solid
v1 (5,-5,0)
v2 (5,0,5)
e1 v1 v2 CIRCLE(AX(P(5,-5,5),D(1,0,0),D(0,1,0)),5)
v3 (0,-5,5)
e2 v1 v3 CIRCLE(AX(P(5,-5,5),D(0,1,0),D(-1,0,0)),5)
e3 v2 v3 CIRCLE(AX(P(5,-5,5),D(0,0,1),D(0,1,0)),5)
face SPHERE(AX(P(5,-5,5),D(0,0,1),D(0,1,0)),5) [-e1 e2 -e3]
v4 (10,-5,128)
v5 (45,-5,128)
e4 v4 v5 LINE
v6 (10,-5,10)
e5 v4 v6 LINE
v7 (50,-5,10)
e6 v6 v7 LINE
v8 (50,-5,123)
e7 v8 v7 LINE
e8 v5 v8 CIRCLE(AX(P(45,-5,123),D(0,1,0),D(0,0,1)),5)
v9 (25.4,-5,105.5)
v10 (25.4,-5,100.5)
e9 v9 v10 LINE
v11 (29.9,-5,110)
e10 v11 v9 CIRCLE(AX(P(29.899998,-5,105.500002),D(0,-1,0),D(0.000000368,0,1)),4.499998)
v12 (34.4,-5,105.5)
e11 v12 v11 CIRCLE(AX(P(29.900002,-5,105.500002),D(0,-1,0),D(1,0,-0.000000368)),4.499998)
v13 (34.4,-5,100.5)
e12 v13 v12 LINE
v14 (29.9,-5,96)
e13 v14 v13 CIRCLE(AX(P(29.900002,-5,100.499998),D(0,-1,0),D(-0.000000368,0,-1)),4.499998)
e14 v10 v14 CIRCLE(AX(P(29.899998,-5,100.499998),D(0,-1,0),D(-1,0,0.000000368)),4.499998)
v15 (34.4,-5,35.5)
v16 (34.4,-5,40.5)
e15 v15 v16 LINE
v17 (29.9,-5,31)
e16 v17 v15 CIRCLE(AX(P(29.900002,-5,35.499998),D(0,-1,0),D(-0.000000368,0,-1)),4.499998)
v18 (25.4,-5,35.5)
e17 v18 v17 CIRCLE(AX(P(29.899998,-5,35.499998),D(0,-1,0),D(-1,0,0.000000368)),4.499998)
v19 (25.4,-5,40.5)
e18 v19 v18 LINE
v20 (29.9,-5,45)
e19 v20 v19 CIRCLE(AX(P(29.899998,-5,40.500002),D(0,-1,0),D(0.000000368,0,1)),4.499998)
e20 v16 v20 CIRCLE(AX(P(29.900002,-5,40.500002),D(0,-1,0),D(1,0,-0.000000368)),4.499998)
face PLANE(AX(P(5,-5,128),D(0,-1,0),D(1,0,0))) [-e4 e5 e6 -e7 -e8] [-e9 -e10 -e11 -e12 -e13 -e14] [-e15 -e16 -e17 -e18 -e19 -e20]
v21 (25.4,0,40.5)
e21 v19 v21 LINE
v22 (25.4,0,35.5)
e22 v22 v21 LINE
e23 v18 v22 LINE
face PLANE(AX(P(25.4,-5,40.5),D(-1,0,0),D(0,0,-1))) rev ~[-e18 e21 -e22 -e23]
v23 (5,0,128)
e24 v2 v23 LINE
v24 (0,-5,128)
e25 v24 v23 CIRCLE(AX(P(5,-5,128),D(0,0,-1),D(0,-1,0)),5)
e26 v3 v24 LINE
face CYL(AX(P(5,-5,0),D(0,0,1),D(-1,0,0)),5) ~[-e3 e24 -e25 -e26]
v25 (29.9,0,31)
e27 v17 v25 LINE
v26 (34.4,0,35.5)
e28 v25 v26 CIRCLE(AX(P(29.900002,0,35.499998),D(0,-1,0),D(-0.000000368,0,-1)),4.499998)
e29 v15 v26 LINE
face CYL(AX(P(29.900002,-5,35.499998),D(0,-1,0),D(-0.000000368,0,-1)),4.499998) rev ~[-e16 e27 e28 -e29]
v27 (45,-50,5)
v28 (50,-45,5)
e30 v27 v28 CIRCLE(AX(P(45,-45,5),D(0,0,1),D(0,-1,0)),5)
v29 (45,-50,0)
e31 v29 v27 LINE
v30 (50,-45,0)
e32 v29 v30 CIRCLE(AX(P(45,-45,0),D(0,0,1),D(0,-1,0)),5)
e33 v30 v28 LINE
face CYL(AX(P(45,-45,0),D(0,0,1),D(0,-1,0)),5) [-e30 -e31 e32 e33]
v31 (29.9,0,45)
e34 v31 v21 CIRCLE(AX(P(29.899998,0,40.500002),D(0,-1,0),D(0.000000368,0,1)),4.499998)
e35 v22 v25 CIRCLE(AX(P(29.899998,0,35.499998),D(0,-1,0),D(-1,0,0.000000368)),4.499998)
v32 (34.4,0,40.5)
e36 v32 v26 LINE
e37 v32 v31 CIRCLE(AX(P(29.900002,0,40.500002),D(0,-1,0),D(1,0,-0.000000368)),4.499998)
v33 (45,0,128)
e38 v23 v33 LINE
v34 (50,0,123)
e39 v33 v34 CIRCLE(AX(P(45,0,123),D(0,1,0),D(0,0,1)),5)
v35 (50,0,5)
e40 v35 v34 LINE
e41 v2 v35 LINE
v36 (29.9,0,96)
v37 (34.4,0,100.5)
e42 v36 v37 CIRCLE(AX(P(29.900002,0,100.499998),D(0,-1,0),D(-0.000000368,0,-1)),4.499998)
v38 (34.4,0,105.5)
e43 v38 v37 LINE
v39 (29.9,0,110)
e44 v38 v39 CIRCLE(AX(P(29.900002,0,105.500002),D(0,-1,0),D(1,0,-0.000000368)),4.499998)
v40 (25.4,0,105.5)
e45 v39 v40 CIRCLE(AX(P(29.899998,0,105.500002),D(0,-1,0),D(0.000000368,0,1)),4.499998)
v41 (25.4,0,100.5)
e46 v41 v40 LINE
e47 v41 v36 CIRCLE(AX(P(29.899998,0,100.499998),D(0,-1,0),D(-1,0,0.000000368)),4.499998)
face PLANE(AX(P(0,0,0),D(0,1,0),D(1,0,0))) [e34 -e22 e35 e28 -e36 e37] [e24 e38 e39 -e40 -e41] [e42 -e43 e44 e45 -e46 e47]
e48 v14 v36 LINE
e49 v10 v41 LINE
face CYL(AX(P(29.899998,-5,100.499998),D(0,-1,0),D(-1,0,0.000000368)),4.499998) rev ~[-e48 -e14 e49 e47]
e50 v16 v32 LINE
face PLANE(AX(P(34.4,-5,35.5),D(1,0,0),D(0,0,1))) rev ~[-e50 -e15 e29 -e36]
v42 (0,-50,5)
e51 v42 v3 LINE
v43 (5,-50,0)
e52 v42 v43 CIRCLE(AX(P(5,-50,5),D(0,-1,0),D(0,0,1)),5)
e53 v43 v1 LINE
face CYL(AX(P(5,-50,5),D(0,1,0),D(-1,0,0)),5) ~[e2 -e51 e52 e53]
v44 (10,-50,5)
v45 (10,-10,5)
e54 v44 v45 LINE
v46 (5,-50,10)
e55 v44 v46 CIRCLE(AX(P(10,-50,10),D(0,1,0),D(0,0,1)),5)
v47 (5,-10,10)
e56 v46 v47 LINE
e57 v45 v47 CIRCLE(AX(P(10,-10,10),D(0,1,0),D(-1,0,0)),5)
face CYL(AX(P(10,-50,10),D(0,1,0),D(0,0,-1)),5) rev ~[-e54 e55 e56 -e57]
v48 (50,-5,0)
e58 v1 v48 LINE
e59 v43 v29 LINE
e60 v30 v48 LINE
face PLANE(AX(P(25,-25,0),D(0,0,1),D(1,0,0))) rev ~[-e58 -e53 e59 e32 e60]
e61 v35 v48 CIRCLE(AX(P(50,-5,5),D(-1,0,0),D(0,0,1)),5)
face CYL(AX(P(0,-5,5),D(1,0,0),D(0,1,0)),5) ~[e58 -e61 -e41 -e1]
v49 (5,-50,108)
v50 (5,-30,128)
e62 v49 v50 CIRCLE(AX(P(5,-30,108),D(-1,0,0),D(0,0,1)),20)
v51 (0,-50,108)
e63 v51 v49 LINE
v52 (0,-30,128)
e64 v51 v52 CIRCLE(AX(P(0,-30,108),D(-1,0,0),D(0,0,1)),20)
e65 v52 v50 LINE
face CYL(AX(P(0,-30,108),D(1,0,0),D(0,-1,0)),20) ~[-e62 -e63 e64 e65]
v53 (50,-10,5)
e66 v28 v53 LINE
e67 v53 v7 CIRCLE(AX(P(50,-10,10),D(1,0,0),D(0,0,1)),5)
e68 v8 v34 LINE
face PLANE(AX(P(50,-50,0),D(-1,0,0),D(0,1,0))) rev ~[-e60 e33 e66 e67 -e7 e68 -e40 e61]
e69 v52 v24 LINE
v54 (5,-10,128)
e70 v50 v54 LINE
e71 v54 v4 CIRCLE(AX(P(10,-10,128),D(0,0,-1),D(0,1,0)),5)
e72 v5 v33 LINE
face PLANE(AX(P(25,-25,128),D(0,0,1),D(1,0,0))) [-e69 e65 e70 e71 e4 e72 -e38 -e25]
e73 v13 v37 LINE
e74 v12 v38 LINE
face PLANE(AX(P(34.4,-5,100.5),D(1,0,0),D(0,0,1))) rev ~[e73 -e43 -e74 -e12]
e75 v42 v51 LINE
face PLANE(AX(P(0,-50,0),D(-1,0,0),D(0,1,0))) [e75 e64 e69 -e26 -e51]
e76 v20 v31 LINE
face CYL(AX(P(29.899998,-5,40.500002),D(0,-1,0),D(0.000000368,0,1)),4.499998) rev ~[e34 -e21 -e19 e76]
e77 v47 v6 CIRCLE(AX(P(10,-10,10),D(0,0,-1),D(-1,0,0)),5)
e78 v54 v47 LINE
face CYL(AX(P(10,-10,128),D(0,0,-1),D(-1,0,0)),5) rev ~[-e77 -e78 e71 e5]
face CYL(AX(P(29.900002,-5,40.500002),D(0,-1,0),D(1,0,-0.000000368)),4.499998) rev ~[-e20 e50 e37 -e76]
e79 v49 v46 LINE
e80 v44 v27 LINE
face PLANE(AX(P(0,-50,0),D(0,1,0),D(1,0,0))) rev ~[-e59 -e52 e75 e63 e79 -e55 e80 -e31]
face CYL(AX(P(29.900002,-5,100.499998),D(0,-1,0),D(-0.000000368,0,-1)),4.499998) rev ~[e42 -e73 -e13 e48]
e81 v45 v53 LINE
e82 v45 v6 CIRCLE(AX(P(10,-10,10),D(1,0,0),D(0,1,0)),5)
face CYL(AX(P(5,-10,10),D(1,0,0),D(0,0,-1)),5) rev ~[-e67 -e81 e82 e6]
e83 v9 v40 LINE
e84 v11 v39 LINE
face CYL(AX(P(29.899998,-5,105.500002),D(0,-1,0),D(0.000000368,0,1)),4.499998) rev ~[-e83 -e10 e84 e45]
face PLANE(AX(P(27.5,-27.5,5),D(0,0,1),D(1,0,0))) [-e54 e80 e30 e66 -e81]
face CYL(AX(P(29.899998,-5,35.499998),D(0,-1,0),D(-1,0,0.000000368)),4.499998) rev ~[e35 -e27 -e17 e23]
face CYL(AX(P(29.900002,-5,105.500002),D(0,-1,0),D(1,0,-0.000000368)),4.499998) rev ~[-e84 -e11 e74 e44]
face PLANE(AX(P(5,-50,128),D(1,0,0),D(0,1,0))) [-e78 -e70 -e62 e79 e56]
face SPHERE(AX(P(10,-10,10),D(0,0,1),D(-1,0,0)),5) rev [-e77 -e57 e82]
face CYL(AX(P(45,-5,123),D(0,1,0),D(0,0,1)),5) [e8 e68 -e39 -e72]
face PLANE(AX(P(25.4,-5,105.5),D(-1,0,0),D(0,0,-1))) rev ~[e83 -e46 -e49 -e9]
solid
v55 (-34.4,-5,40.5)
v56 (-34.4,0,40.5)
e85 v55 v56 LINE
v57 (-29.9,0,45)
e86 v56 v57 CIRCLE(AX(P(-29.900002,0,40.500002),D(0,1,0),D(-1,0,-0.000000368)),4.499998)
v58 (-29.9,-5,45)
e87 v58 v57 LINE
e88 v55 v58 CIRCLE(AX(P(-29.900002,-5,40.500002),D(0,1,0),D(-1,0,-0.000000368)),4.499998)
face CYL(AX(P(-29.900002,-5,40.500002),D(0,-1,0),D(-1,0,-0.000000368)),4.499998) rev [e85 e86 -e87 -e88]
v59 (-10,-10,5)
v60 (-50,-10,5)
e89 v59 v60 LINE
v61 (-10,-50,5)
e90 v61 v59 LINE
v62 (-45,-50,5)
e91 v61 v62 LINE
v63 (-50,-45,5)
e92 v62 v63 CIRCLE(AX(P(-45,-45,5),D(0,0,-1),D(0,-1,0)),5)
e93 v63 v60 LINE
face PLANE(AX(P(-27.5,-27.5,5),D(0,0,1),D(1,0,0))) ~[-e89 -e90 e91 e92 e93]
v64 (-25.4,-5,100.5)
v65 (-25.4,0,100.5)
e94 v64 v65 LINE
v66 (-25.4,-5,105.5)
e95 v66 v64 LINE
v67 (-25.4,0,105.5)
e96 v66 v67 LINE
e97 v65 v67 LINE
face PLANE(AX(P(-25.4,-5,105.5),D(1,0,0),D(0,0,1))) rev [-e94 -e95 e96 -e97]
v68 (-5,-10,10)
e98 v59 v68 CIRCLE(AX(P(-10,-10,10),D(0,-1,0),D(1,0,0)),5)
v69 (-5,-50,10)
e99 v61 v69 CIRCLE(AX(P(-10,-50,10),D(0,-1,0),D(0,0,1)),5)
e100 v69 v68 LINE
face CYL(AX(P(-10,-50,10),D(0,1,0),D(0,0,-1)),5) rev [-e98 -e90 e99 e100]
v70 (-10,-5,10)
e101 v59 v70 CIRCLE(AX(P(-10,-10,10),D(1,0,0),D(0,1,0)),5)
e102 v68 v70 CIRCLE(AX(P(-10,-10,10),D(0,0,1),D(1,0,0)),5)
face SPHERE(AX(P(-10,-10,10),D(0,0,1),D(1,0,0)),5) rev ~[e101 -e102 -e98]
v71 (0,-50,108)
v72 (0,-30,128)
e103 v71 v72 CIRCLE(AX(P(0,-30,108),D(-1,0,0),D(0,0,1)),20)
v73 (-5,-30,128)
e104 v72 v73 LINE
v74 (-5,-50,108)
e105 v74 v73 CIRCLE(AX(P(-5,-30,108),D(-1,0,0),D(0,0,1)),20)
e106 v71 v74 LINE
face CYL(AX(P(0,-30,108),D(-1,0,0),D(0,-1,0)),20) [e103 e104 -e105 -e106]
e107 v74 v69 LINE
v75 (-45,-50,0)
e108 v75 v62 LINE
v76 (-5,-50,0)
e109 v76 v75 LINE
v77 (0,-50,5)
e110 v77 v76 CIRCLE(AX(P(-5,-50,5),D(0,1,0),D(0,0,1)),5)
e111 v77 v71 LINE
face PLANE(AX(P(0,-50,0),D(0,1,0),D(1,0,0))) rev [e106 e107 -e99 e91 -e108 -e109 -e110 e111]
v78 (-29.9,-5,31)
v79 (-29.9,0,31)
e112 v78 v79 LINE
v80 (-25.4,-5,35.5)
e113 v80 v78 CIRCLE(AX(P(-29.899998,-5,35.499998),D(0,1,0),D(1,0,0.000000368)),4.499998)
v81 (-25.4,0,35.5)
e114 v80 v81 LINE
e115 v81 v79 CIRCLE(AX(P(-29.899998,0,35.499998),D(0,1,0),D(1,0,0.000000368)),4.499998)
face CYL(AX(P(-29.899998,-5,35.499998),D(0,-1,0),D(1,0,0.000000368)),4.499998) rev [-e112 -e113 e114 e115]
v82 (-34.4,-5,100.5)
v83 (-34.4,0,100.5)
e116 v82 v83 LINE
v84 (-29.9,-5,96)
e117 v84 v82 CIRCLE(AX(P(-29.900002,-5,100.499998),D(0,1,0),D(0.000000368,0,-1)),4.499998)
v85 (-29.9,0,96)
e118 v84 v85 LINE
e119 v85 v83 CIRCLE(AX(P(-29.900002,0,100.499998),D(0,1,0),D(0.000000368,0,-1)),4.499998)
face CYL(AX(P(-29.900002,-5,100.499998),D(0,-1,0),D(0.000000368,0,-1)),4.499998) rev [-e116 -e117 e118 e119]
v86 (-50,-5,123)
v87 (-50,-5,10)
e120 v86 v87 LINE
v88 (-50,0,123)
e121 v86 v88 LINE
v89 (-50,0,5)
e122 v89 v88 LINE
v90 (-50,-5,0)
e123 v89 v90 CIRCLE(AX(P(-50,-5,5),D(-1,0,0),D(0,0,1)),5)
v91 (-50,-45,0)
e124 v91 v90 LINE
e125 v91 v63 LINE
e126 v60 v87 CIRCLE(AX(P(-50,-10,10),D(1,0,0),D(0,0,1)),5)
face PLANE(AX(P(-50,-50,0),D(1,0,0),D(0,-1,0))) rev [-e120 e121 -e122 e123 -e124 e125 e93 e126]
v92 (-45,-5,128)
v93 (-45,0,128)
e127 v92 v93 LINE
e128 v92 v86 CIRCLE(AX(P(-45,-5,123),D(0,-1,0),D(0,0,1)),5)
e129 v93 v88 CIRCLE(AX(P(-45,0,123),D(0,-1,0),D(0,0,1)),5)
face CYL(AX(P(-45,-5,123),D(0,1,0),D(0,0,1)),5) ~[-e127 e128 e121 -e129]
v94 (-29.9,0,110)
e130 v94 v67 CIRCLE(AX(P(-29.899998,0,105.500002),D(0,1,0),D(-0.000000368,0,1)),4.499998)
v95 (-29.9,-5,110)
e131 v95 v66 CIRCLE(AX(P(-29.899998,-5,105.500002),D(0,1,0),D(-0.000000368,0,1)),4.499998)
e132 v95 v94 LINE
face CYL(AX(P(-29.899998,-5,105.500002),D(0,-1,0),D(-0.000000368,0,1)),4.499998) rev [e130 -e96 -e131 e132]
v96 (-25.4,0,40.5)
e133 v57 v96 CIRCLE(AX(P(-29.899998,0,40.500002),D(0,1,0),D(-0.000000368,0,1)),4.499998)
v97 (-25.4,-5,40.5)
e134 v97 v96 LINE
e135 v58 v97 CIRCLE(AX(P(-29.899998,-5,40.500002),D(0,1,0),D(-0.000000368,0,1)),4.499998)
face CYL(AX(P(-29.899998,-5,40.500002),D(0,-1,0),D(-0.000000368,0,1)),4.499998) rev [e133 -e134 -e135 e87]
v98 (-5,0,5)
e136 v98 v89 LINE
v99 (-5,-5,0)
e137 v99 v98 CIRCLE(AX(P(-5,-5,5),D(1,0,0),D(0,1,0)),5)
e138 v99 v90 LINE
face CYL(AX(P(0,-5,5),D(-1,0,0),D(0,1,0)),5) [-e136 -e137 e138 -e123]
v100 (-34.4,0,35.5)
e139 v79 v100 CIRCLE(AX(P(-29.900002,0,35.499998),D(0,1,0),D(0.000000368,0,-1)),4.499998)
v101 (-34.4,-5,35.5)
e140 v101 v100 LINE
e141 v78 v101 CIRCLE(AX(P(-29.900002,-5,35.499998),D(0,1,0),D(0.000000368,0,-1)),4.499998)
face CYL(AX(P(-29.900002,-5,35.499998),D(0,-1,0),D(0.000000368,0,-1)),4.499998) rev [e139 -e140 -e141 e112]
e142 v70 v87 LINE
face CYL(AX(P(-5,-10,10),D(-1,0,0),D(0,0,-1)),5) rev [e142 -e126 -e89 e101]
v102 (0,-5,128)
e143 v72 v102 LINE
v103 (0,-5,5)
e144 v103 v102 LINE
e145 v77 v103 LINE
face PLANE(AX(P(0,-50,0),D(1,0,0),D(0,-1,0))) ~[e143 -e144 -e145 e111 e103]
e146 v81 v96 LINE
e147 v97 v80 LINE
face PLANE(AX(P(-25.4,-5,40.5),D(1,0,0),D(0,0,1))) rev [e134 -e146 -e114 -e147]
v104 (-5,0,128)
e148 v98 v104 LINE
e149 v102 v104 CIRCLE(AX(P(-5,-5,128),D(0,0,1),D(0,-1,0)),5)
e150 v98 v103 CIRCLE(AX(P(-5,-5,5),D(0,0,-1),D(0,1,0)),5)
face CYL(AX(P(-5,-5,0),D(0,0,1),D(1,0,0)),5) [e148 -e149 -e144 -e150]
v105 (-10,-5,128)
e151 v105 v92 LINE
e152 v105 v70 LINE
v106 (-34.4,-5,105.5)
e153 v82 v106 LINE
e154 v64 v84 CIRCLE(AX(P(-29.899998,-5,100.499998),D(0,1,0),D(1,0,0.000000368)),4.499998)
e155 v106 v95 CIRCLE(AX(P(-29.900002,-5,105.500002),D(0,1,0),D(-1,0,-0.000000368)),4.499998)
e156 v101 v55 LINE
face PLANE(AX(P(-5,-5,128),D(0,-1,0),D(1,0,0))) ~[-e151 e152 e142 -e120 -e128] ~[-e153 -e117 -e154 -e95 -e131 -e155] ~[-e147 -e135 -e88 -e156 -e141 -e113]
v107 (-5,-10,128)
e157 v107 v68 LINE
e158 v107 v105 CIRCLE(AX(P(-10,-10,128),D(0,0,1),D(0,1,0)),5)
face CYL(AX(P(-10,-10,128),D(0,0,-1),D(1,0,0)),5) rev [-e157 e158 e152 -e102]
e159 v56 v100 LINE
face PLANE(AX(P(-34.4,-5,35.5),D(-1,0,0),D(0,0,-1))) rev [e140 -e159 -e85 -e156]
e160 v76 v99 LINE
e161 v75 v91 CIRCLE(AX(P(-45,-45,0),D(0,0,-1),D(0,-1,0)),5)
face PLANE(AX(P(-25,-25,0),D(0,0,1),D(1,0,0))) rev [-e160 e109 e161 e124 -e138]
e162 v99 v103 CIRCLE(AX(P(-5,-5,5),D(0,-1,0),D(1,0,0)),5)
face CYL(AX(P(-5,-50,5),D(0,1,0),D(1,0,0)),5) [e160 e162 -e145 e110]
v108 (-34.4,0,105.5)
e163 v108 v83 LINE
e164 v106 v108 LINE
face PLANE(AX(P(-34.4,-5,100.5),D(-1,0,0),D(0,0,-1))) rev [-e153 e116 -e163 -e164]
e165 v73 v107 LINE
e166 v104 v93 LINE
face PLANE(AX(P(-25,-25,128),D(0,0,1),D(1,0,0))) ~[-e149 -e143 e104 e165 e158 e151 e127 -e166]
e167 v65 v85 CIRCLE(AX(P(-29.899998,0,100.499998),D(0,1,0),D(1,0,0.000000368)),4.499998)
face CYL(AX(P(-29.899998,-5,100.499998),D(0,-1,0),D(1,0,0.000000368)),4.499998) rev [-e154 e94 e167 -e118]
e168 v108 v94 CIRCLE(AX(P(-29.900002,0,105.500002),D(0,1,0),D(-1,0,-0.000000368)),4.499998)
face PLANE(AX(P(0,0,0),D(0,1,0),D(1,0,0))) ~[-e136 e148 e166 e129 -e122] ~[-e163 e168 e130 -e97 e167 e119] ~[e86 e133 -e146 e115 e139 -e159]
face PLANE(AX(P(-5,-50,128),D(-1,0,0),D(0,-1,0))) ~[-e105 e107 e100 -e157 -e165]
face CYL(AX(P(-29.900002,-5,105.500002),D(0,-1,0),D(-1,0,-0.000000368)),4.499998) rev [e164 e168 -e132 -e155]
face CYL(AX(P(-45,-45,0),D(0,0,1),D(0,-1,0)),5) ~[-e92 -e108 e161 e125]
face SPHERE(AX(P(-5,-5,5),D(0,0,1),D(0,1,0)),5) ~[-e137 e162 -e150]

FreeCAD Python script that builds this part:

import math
import FreeCAD as App
import Part
import Sketcher
from FreeCAD import Vector
Q = App.Units.Quantity


def edges_at(feature, points):
    """Names of the edges that pass closest to the given points."""
    edges = feature.Shape.Edges
    near = lambda p: min(range(len(edges)), key=lambda i: edges[i].distToShape(Part.Vertex(*p))[0])
    return sorted({f"Edge{near(p) + 1}" for p in points})


def add_polygon(sketch, points):
    """Adds a closed chain of lines whose ends are joined by coincident constraints."""
    first, n = sketch.GeometryCount, len(points)
    for a, b in zip(points, points[1:] + points[:1]):
        sketch.addGeometry(Part.LineSegment(App.Vector(*a, 0), App.Vector(*b, 0)), False)
    for i in range(n):
        sketch.addConstraint(Sketcher.Constraint("Coincident", first + i, 2, first + (i + 1) % n, 1))

doc = App.newDocument("Part")
body = doc.addObject("PartDesign::Body", "Body")

# Sketch on XY plane
sketch1 = doc.addObject("Sketcher::SketchObject", "Sketch")
body.addObject(sketch1)
sketch1.AttachmentSupport = (doc.XY_Plane, [""])
sketch1.MapMode = "FlatFace"
add_polygon(sketch1, [(0, 0), (0, -50), (50, -50), (50, 0)])  # lines 0-3
sketch1.addConstraint([
    Sketcher.Constraint("Vertical", 0),
    Sketcher.Constraint("Horizontal", 1),
    Sketcher.Constraint("Vertical", 2),
    Sketcher.Constraint("Horizontal", 3),
    Sketcher.Constraint("Coincident", 3, 2, -1, 1),
    Sketcher.Constraint("Equal", 3, 0),
    Sketcher.Constraint("DistanceX", 1, 1, 1, 2, Q("50 mm")),
])
pad1 = doc.addObject("PartDesign::Pad", "Pad")
body.addObject(pad1)
pad1.Profile = sketch1
pad1.Length = 128

# Sketch on XY plane
sketch2 = doc.addObject("Sketcher::SketchObject", "Sketch001")
body.addObject(sketch2)
sketch2.AttachmentSupport = (doc.XY_Plane, [""])
sketch2.MapMode = "FlatFace"
sketch2.AttachmentOffset = App.Placement(Vector(0, 0, 128), App.Rotation())
add_polygon(sketch2, [(5, -5), (5, -50), (50, -50), (50, -5)])  # lines 0-3
sketch2.addConstraint([
    Sketcher.Constraint("Vertical", 0),
    Sketcher.Constraint("Horizontal", 1),
    Sketcher.Constraint("Vertical", 2),
    Sketcher.Constraint("Horizontal", 3),
    Sketcher.Constraint("Equal", 3, 0),
    Sketcher.Constraint("DistanceX", 1, 1, 1, 2, Q("45 mm")),
    Sketcher.Constraint("DistanceX", -1, 1, 0, 2, Q("5 mm")),
    Sketcher.Constraint("DistanceY", 0, 2, -1, 1, Q("50 mm")),
])
pocket1 = doc.addObject("PartDesign::Pocket", "Pocket")
body.addObject(pocket1)
pocket1.Profile = sketch2
pocket1.Length = 123
doc.recompute()

fillet = doc.addObject("PartDesign::Fillet", "Fillet")
body.addObject(fillet)
fillet.Base = (pocket1, edges_at(pocket1, [
    (5, -5, 66.5),
    (0, 0, 64),
    (25, 0, 0),
    (0, -25, 0),
    (5, -27.5, 5),
    (27.5, -5, 5),
    (50, -2.5, 128),
    (50, -50, 2.5),
]))
fillet.Radius = 5
doc.recompute()

fillet2 = doc.addObject("PartDesign::Fillet", "Fillet001")
body.addObject(fillet2)
fillet2.Base = (fillet, edges_at(fillet, [(2.5, -50, 128)]))
fillet2.Radius = 20

# Sketch on XZ plane
sketch3 = doc.addObject("Sketcher::SketchObject", "Sketch002")
body.addObject(sketch3)
sketch3.AttachmentSupport = (doc.XZ_Plane, [""])
sketch3.MapMode = "FlatFace"
sketch3.AttachmentOffset = App.Placement(Vector(0, 0, 5), App.Rotation())
sketch3.addGeometry([
    Part.ArcOfCircle(Part.Circle(Vector(29.899998, 105.500002, 0), Vector(0, 0, 1), 4.499998), math.radians(89.999979), math.radians(180.000021)),  # 0
    Part.LineSegment(Vector(25.4, 105.5, 0), Vector(25.4, 100.5, 0)),  # 1
    Part.ArcOfCircle(Part.Circle(Vector(29.899998, 100.499998, 0), Vector(0, 0, 1), 4.499998), math.radians(179.999979), math.radians(270.000021)),  # 2
    Part.ArcOfCircle(Part.Circle(Vector(29.900002, 100.499998, 0), Vector(0, 0, 1), 4.499998), math.radians(-90.000021), math.radians(0.000021)),  # 3
    Part.LineSegment(Vector(34.4, 100.5, 0), Vector(34.4, 105.5, 0)),  # 4
    Part.ArcOfCircle(Part.Circle(Vector(29.900002, 105.500002, 0), Vector(0, 0, 1), 4.499998), math.radians(-0.000021), math.radians(90.000021)),  # 5
    Part.ArcOfCircle(Part.Circle(Vector(29.900002, 40.500002, 0), Vector(0, 0, 1), 4.499998), math.radians(-0.000021), math.radians(90.000021)),  # 6
    Part.ArcOfCircle(Part.Circle(Vector(29.899998, 40.500002, 0), Vector(0, 0, 1), 4.499998), math.radians(89.999979), math.radians(180.000021)),  # 7
    Part.LineSegment(Vector(25.4, 40.5, 0), Vector(25.4, 35.5, 0)),  # 8
    Part.ArcOfCircle(Part.Circle(Vector(29.899998, 35.499998, 0), Vector(0, 0, 1), 4.499998), math.radians(179.999979), math.radians(270.000021)),  # 9
    Part.ArcOfCircle(Part.Circle(Vector(29.900002, 35.499998, 0), Vector(0, 0, 1), 4.499998), math.radians(-90.000021), math.radians(0.000021)),  # 10
    Part.LineSegment(Vector(34.4, 35.5, 0), Vector(34.4, 40.5, 0)),  # 11
], False)
sketch3.addConstraint([
    Sketcher.Constraint("Tangent", 0, 2, 1, 1),
    Sketcher.Constraint("Tangent", 1, 2, 2, 1),
    Sketcher.Constraint("Tangent", 2, 2, 3, 1),
    Sketcher.Constraint("Tangent", 3, 2, 4, 1),
    Sketcher.Constraint("Tangent", 4, 2, 5, 1),
    Sketcher.Constraint("Tangent", 5, 2, 0, 1),
    Sketcher.Constraint("Tangent", 6, 2, 7, 1),
    Sketcher.Constraint("Tangent", 7, 2, 8, 1),
    Sketcher.Constraint("Tangent", 8, 2, 9, 1),
    Sketcher.Constraint("Tangent", 9, 2, 10, 1),
    Sketcher.Constraint("Tangent", 10, 2, 11, 1),
    Sketcher.Constraint("Tangent", 11, 2, 6, 1),
    Sketcher.Constraint("Vertical", 1),
    Sketcher.Constraint("Vertical", 4),
    Sketcher.Constraint("Vertical", 8),
    Sketcher.Constraint("Vertical", 11),
    Sketcher.Constraint("Equal", 0, 2),
    Sketcher.Constraint("Equal", 2, 3),
    Sketcher.Constraint("Equal", 5, 6),
    Sketcher.Constraint("Equal", 6, 7),
    Sketcher.Constraint("Equal", 7, 9),
    Sketcher.Constraint("Vertical", 5, 3, 6, 3),
    Sketcher.Constraint("Vertical", 10, 3, 2, 2),
    Sketcher.Constraint("Vertical", 2, 2, 5, 2),
    Sketcher.Constraint("Vertical", 5, 2, 6, 2),
    Sketcher.Constraint("Vertical", 6, 2, 9, 2),
    Sketcher.Constraint("Equal", 4, 8),
    Sketcher.Constraint("Radius", 0, Q("4.499998 mm")),
    Sketcher.Constraint("DistanceY", 1, 2, 1, 1, Q("5 mm")),
    Sketcher.Constraint("DistanceY", -1, 1, 2, 2, Q("96 mm")),
    Sketcher.Constraint("DistanceY", -1, 1, 6, 2, Q("45 mm")),
    Sketcher.Constraint("DistanceX", -1, 1, 0, 3, Q("29.899998 mm")),
])
pocket2 = doc.addObject("PartDesign::Pocket", "Pocket001")
body.addObject(pocket2)
pocket2.Profile = sketch3
pocket2.Type = "ThroughAll"
body2 = doc.addObject("PartDesign::Body", "Body001")
doc.recompute()

mirroring = doc.addObject("Part::Mirroring", "Mirroring")
mirroring.Source = body
mirroring.Base = Vector(0, 0, 0)
mirroring.Normal = Vector(1, 0, 0)
body2.BaseFeature = mirroring
doc.recompute()
mirroring.Visibility = False

doc.recompute()
